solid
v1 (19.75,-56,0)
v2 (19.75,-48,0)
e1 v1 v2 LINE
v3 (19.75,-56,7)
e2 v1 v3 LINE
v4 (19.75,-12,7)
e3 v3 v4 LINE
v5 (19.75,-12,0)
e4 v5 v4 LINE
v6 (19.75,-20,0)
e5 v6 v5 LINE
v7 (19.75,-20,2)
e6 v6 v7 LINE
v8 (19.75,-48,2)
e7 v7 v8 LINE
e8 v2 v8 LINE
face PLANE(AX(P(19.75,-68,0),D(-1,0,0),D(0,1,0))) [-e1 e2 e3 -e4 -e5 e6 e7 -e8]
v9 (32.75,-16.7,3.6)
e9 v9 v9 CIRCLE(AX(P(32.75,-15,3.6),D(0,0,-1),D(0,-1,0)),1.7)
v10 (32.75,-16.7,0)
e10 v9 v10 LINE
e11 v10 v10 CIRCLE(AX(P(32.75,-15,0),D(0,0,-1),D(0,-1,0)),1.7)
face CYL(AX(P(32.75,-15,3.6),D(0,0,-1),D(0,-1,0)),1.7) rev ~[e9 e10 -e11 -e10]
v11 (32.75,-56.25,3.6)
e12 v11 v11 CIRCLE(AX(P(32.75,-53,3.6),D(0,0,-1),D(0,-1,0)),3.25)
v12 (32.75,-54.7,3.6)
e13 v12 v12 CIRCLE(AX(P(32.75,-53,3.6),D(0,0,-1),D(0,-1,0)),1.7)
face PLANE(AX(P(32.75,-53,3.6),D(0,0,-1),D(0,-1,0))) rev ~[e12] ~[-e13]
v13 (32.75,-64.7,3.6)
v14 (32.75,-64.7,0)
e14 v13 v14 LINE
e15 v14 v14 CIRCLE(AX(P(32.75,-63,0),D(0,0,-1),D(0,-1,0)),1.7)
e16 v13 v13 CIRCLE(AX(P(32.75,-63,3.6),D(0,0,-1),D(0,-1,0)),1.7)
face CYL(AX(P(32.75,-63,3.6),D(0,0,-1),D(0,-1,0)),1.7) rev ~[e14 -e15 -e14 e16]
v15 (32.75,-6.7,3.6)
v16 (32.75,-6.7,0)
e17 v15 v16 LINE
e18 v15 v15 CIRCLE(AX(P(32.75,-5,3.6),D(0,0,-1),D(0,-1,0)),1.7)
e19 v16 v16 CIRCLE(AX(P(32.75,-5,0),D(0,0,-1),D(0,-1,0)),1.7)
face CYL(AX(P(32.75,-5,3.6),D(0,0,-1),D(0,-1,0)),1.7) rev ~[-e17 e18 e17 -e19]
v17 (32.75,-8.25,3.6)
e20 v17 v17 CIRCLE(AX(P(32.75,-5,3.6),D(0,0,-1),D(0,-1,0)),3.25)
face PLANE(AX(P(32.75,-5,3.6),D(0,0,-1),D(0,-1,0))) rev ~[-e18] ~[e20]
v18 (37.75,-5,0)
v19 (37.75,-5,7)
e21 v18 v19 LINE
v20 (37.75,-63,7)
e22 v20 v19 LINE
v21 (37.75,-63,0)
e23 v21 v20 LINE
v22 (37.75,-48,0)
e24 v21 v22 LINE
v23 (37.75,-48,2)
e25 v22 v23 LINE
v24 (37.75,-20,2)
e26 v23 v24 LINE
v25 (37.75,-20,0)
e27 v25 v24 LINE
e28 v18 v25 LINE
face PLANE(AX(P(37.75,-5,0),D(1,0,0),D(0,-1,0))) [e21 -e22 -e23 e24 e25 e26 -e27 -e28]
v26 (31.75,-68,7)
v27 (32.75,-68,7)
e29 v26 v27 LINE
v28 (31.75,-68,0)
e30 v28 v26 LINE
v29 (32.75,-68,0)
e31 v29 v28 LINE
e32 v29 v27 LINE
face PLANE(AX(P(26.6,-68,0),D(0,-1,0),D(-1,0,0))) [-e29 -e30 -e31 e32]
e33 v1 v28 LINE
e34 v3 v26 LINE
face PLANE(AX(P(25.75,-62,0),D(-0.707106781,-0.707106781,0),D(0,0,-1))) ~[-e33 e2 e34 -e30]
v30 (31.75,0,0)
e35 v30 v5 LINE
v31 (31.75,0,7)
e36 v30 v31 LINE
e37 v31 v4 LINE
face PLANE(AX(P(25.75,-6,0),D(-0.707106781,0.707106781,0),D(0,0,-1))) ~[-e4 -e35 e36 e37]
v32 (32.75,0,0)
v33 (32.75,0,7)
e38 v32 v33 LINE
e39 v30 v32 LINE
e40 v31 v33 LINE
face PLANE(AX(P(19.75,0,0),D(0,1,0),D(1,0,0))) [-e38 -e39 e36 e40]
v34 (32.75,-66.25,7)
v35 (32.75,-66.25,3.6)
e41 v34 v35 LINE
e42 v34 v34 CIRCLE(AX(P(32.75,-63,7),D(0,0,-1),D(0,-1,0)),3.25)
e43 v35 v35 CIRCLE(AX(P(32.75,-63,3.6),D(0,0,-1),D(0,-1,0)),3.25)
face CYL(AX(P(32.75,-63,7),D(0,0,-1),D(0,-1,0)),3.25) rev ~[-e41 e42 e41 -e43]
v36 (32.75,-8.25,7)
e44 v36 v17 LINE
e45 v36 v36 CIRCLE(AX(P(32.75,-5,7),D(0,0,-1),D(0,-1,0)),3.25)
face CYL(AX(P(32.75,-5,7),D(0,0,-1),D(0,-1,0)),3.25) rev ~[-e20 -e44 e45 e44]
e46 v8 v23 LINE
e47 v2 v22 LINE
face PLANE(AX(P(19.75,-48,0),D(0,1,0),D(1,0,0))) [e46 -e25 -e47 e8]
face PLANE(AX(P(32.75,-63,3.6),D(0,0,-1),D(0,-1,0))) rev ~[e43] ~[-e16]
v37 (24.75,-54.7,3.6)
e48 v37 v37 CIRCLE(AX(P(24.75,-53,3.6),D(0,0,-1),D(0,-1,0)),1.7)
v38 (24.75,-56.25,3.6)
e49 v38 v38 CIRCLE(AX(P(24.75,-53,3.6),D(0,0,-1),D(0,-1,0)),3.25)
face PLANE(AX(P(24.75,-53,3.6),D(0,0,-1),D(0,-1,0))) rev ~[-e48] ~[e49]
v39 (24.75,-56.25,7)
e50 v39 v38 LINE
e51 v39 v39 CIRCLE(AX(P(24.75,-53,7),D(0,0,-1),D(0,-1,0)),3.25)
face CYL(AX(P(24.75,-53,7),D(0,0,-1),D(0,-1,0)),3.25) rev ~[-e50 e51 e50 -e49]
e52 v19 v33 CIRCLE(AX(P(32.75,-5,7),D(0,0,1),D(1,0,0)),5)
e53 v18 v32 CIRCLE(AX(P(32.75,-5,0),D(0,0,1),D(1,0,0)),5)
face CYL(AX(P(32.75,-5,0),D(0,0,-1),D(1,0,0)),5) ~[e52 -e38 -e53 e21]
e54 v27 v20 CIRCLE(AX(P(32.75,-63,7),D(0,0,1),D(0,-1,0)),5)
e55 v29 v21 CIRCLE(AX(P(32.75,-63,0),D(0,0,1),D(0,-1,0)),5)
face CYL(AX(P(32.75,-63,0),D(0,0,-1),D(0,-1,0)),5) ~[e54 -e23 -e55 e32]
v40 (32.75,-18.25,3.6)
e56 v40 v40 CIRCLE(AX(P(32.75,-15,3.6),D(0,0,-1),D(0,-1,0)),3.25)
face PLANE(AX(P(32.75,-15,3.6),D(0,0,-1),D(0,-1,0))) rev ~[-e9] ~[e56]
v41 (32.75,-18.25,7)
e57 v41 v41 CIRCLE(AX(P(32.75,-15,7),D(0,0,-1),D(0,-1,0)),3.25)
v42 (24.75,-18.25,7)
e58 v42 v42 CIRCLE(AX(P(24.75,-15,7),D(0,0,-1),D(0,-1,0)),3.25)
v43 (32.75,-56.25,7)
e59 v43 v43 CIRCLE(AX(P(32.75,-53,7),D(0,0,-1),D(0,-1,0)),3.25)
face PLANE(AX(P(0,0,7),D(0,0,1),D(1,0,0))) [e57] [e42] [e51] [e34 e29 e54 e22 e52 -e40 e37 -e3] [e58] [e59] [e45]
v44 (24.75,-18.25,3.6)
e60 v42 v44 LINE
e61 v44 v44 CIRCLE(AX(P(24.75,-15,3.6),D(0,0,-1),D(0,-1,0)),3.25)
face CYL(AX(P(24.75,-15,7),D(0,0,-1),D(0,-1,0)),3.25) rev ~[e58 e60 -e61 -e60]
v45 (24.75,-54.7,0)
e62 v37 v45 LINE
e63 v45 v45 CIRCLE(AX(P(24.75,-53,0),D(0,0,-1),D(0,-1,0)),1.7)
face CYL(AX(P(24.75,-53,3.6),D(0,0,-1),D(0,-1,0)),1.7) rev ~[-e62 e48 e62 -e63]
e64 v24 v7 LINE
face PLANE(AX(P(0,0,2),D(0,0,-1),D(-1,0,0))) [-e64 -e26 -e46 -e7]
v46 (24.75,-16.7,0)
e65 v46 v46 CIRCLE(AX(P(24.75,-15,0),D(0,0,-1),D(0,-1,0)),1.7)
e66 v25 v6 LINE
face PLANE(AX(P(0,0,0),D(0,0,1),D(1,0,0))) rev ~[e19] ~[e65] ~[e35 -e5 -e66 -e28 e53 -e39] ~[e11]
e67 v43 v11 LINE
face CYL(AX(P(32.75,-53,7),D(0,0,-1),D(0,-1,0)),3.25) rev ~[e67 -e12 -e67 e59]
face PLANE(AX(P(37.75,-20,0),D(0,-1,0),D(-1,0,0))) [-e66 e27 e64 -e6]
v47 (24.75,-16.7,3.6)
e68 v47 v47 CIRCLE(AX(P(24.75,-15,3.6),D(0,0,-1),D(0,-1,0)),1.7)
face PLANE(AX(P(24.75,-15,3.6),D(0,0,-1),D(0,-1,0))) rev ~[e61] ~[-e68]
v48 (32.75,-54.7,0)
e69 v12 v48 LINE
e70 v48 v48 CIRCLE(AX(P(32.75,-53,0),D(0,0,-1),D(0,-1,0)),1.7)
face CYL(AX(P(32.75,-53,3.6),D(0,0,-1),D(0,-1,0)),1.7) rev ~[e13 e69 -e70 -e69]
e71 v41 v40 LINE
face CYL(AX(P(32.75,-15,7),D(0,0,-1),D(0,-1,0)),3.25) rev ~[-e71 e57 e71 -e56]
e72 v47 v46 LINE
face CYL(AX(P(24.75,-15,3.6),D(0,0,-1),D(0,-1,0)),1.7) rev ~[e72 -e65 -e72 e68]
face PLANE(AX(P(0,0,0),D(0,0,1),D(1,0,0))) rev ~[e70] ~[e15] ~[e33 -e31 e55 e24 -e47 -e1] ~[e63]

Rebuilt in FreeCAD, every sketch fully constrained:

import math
import FreeCAD as App
import Part
import Sketcher
from FreeCAD import Vector


def edges_at(feature, points):
    """Names of the edges that pass closest to the given points."""
    edges = feature.Shape.Edges
    near = lambda p: min(range(len(edges)), key=lambda i: edges[i].distToShape(Part.Vertex(*p))[0])
    return sorted({f"Edge{near(p) + 1}" for p in points})


def add_polygon(sketch, points):
    """Adds a closed chain of lines whose ends are joined by coincident constraints."""
    first, n = sketch.GeometryCount, len(points)
    for a, b in zip(points, points[1:] + points[:1]):
        sketch.addGeometry(Part.LineSegment(App.Vector(*a, 0), App.Vector(*b, 0)), False)
    for i in range(n):
        sketch.addConstraint(Sketcher.Constraint("Coincident", first + i, 2, first + (i + 1) % n, 1))

doc = App.newDocument("Part")
body = doc.addObject("PartDesign::Body", "Body")

# Sketch on XY plane
sketch1 = body.newObject("Sketcher::SketchObject", "Sketch")
sketch1.AttachmentSupport = (doc.getObject("XY_Plane"), [""])
sketch1.MapMode = "FlatFace"
sketch1.addGeometry([
    Part.LineSegment(Vector(32.75, 0, 0), Vector(19.75, 0, 0)),  # 0
    Part.LineSegment(Vector(19.75, 0, 0), Vector(19.75, -68, 0)),  # 1
    Part.LineSegment(Vector(19.75, -68, 0), Vector(32.75, -68, 0)),  # 2
    Part.ArcOfCircle(Part.Circle(Vector(32.75, -63, 0), Vector(0, 0, 1), 5), math.radians(-90), math.radians(0)),  # 3
    Part.LineSegment(Vector(37.75, -63, 0), Vector(37.75, -5, 0)),  # 4
    Part.ArcOfCircle(Part.Circle(Vector(32.75, -5, 0), Vector(0, 0, 1), 5), math.radians(0), math.radians(90)),  # 5
], False)
sketch1.addConstraint([
    Sketcher.Constraint("Coincident", 0, 2, 1, 1),
    Sketcher.Constraint("Coincident", 1, 2, 2, 1),
    Sketcher.Constraint("Tangent", 2, 2, 3, 1),
    Sketcher.Constraint("Tangent", 3, 2, 4, 1),
    Sketcher.Constraint("Tangent", 4, 2, 5, 1),
    Sketcher.Constraint("Tangent", 5, 2, 0, 1),
    Sketcher.Constraint("Horizontal", 0),
    Sketcher.Constraint("Vertical", 1),
    Sketcher.Constraint("Horizontal", 2),
    Sketcher.Constraint("Vertical", 4),
    Sketcher.Constraint("Equal", 3, 5),
    Sketcher.Constraint("PointOnObject", 0, 2, -1),
    Sketcher.Constraint("Radius", 3, 5.0),
    Sketcher.Constraint("DistanceX", 1, 2, 3, 2, 18.0),
    Sketcher.Constraint("DistanceY", 1, 2, 1, 1, 68.0),
    Sketcher.Constraint("DistanceX", -1, 1, 3, 3, 32.75),
])
pad1 = body.newObject("PartDesign::Pad", "Pad")
pad1.Profile = sketch1
pad1.Length = 7

# Sketch on XY plane
sketch2 = body.newObject("Sketcher::SketchObject", "Sketch001")
sketch2.AttachmentSupport = (doc.getObject("XY_Plane"), [""])
sketch2.MapMode = "FlatFace"
add_polygon(sketch2, [(37.75, -48), (19.75, -48), (19.75, -20), (37.75, -20)])  # lines 0-3
sketch2.addConstraint([
    Sketcher.Constraint("Horizontal", 0),
    Sketcher.Constraint("Vertical", 1),
    Sketcher.Constraint("Horizontal", 2),
    Sketcher.Constraint("Vertical", 3),
    Sketcher.Constraint("DistanceX", 0, 2, 0, 1, 18.0),
    Sketcher.Constraint("DistanceY", 1, 1, 1, 2, 28.0),
    Sketcher.Constraint("DistanceY", 0, 2, -1, 1, 48.0),
    Sketcher.Constraint("DistanceX", -1, 1, 0, 2, 19.75),
])
pocket1 = body.newObject("PartDesign::Pocket", "Pocket")
pocket1.Profile = sketch2
pocket1.Length = 2
pocket1.Reversed = True

# Sketch on XY plane
sketch3 = body.newObject("Sketcher::SketchObject", "Sketch002")
sketch3.AttachmentSupport = (doc.getObject("XY_Plane"), [""])
sketch3.MapMode = "FlatFace"
sketch3.AttachmentOffset = App.Placement(Vector(0, 0, 7), App.Rotation())
sketch3.addGeometry([
    Part.Circle(Vector(32.75, -5, 0), Vector(0, 0, 1), 1.7),  # 0
    Part.Circle(Vector(32.75, -63, 0), Vector(0, 0, 1), 1.7),  # 1
    Part.Circle(Vector(32.75, -15, 0), Vector(0, 0, 1), 1.7),  # 2
    Part.Circle(Vector(24.75, -15, 0), Vector(0, 0, 1), 1.7),  # 3
    Part.Circle(Vector(24.75, -53, 0), Vector(0, 0, 1), 1.7),  # 4
    Part.Circle(Vector(32.75, -53, 0), Vector(0, 0, 1), 1.7),  # 5
], False)
sketch3.addConstraint([
    Sketcher.Constraint("Equal", 0, 1),
    Sketcher.Constraint("Equal", 1, 2),
    Sketcher.Constraint("Equal", 2, 3),
    Sketcher.Constraint("Equal", 3, 4),
    Sketcher.Constraint("Equal", 4, 5),
    Sketcher.Constraint("Horizontal", 2, 3, 3, 3),
    Sketcher.Constraint("Horizontal", 4, 3, 5, 3),
    Sketcher.Constraint("Vertical", 0, 3, 1, 3),
    Sketcher.Constraint("Vertical", 1, 3, 2, 3),
    Sketcher.Constraint("Vertical", 3, 3, 4, 3),
    Sketcher.Constraint("Vertical", 2, 3, 5, 3),
    Sketcher.Constraint("Diameter", 0, 3.4),
    Sketcher.Constraint("DistanceY", 0, 3, -1, 1, 5.0),
    Sketcher.Constraint("DistanceY", 1, 3, -1, 1, 63.0),
    Sketcher.Constraint("DistanceY", 2, 3, -1, 1, 15.0),
    Sketcher.Constraint("DistanceY", 4, 3, -1, 1, 53.0),
    Sketcher.Constraint("DistanceX", 3, 3, 2, 3, 8.0),
    Sketcher.Constraint("DistanceX", -1, 1, 0, 3, 32.75),
])
doc.recompute()
hole = body.newObject("PartDesign::Hole", "Hole")
hole.Profile = sketch3
hole.ThreadType = "None"
hole.Diameter = 3.4
hole.DepthType = "Dimension"
hole.Depth = 7
hole.DrillPoint = "Flat"
hole.HoleCutType = "Counterbore"
hole.HoleCutDiameter = 6.5
hole.HoleCutDepth = 3.4
doc.recompute()

chamfer = body.newObject("PartDesign::Chamfer", "Chamfer")
chamfer.Base = (hole, edges_at(hole, [(19.75, -68, 3.5), (19.75, 0, 3.5)]))
chamfer.Size = 12

doc.recompute()
